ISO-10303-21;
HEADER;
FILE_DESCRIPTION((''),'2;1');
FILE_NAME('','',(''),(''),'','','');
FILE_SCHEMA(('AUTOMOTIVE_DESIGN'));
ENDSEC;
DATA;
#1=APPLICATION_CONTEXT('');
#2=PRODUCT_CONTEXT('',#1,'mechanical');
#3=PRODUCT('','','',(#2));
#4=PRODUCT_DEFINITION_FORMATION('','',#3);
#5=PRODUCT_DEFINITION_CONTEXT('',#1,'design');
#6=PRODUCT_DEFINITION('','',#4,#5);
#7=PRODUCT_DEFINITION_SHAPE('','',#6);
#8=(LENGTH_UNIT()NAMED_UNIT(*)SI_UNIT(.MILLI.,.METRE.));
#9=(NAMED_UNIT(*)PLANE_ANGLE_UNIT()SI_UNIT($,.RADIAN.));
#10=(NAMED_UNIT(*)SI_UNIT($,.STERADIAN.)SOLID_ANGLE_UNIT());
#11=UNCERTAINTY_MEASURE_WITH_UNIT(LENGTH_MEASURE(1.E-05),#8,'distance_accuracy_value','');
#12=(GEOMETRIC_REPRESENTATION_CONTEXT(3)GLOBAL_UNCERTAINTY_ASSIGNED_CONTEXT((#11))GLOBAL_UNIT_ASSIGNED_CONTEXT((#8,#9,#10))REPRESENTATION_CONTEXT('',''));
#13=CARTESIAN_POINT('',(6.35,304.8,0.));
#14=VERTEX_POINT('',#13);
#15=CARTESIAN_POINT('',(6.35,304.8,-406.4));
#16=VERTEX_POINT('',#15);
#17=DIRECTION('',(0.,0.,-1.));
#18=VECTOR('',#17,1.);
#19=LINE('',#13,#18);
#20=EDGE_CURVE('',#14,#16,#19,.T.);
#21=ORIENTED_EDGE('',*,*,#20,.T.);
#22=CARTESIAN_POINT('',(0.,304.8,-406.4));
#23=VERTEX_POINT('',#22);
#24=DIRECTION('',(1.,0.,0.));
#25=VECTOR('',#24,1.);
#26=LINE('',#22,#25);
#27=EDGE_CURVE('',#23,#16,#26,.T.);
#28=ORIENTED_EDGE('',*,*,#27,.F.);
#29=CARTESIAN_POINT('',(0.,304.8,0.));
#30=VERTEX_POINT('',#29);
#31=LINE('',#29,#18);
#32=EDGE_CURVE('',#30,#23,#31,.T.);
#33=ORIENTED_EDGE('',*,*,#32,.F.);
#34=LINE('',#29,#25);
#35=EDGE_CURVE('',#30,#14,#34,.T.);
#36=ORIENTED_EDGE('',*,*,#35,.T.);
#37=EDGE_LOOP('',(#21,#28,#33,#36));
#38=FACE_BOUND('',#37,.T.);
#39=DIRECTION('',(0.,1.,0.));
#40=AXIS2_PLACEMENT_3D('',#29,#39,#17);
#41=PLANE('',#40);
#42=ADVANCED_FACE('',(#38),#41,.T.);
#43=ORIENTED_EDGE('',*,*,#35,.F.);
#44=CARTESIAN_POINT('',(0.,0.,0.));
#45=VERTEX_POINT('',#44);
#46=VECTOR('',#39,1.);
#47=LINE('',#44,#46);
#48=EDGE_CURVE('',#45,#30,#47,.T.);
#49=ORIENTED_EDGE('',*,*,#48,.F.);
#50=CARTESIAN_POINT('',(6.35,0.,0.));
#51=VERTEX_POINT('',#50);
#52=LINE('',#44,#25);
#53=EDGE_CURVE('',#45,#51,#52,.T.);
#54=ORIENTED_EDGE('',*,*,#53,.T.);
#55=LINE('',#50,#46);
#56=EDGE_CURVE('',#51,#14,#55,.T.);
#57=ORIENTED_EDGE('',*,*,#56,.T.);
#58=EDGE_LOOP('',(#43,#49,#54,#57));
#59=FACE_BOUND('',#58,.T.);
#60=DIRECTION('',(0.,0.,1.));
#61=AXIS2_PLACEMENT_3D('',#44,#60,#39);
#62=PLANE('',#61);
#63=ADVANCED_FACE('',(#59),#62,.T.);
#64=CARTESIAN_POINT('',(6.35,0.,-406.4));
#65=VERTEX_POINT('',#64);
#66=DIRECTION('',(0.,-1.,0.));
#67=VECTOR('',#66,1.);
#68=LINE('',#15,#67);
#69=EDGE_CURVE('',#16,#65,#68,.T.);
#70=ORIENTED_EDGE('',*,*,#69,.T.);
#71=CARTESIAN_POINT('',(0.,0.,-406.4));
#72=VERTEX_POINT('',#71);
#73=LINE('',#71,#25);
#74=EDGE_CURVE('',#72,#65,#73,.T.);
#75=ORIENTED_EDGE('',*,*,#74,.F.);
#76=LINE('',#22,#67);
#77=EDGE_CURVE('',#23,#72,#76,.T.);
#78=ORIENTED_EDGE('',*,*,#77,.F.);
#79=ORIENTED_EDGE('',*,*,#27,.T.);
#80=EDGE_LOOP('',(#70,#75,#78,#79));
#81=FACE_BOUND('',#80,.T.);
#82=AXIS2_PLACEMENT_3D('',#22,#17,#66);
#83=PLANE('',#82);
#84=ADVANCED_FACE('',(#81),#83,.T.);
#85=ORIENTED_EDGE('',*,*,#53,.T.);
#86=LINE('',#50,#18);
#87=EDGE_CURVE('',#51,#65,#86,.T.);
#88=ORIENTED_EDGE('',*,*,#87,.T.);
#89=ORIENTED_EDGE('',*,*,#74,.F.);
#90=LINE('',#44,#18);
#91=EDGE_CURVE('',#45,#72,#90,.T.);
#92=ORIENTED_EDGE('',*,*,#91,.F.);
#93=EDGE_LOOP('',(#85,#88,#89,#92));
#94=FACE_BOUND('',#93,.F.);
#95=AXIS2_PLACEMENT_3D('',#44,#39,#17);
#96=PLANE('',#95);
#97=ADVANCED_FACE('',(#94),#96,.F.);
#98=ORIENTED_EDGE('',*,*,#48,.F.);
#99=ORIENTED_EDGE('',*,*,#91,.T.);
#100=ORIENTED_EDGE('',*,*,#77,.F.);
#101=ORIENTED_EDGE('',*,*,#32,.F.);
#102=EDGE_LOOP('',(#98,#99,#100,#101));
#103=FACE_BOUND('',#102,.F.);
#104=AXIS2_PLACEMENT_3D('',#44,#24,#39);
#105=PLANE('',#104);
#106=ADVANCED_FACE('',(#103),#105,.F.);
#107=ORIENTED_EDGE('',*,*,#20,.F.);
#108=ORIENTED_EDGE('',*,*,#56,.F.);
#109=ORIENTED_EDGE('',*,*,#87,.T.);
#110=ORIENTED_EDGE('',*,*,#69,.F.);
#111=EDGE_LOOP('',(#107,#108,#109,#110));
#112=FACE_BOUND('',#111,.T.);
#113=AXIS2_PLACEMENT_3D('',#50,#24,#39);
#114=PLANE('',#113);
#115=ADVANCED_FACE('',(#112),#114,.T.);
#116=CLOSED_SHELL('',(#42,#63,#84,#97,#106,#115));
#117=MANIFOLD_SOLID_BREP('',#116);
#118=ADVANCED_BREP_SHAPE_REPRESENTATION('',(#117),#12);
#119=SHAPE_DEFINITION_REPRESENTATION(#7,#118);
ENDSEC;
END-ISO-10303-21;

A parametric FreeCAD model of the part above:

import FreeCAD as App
import Part
import Sketcher

V = App.Vector
Q = App.Units.Quantity


def add_polygon(sketch, points):
    """Adds a closed chain of lines whose ends are joined by coincident constraints."""
    first, n = sketch.GeometryCount, len(points)
    for a, b in zip(points, points[1:] + points[:1]):
        sketch.addGeometry(Part.LineSegment(App.Vector(*a, 0), App.Vector(*b, 0)), False)
    for i in range(n):
        sketch.addConstraint(Sketcher.Constraint("Coincident", first + i, 2, first + (i + 1) % n, 1))

doc = App.newDocument("Part")
body = doc.addObject("PartDesign::Body", "Body")

# Sketch on YZ plane
sketch1 = doc.addObject("Sketcher::SketchObject", "Sketch")
body.addObject(sketch1)
sketch1.AttachmentSupport = (doc.YZ_Plane, [""])
sketch1.MapMode = "FlatFace"
add_polygon(sketch1, [(305, 0), (0, 0), (0, -406), (305, -406)])  # lines 0-3
sketch1.addConstraint(Sketcher.Constraint("Horizontal", 0))
sketch1.addConstraint(Sketcher.Constraint("Vertical", 1))
sketch1.addConstraint(Sketcher.Constraint("Horizontal", 2))
sketch1.addConstraint(Sketcher.Constraint("Vertical", 3))
sketch1.addConstraint(Sketcher.Constraint("Coincident", 0, 2, -1, 1))
sketch1.addConstraint(Sketcher.Constraint("DistanceX", 0, 2, 0, 1, Q("12 in")))
sketch1.addConstraint(Sketcher.Constraint("DistanceY", 1, 2, 1, 1, Q("16 in")))
pad1 = doc.addObject("PartDesign::Pad", "Pad")
body.addObject(pad1)
pad1.Profile = sketch1
pad1.Length = Q("0.25 in")

doc.recompute()
